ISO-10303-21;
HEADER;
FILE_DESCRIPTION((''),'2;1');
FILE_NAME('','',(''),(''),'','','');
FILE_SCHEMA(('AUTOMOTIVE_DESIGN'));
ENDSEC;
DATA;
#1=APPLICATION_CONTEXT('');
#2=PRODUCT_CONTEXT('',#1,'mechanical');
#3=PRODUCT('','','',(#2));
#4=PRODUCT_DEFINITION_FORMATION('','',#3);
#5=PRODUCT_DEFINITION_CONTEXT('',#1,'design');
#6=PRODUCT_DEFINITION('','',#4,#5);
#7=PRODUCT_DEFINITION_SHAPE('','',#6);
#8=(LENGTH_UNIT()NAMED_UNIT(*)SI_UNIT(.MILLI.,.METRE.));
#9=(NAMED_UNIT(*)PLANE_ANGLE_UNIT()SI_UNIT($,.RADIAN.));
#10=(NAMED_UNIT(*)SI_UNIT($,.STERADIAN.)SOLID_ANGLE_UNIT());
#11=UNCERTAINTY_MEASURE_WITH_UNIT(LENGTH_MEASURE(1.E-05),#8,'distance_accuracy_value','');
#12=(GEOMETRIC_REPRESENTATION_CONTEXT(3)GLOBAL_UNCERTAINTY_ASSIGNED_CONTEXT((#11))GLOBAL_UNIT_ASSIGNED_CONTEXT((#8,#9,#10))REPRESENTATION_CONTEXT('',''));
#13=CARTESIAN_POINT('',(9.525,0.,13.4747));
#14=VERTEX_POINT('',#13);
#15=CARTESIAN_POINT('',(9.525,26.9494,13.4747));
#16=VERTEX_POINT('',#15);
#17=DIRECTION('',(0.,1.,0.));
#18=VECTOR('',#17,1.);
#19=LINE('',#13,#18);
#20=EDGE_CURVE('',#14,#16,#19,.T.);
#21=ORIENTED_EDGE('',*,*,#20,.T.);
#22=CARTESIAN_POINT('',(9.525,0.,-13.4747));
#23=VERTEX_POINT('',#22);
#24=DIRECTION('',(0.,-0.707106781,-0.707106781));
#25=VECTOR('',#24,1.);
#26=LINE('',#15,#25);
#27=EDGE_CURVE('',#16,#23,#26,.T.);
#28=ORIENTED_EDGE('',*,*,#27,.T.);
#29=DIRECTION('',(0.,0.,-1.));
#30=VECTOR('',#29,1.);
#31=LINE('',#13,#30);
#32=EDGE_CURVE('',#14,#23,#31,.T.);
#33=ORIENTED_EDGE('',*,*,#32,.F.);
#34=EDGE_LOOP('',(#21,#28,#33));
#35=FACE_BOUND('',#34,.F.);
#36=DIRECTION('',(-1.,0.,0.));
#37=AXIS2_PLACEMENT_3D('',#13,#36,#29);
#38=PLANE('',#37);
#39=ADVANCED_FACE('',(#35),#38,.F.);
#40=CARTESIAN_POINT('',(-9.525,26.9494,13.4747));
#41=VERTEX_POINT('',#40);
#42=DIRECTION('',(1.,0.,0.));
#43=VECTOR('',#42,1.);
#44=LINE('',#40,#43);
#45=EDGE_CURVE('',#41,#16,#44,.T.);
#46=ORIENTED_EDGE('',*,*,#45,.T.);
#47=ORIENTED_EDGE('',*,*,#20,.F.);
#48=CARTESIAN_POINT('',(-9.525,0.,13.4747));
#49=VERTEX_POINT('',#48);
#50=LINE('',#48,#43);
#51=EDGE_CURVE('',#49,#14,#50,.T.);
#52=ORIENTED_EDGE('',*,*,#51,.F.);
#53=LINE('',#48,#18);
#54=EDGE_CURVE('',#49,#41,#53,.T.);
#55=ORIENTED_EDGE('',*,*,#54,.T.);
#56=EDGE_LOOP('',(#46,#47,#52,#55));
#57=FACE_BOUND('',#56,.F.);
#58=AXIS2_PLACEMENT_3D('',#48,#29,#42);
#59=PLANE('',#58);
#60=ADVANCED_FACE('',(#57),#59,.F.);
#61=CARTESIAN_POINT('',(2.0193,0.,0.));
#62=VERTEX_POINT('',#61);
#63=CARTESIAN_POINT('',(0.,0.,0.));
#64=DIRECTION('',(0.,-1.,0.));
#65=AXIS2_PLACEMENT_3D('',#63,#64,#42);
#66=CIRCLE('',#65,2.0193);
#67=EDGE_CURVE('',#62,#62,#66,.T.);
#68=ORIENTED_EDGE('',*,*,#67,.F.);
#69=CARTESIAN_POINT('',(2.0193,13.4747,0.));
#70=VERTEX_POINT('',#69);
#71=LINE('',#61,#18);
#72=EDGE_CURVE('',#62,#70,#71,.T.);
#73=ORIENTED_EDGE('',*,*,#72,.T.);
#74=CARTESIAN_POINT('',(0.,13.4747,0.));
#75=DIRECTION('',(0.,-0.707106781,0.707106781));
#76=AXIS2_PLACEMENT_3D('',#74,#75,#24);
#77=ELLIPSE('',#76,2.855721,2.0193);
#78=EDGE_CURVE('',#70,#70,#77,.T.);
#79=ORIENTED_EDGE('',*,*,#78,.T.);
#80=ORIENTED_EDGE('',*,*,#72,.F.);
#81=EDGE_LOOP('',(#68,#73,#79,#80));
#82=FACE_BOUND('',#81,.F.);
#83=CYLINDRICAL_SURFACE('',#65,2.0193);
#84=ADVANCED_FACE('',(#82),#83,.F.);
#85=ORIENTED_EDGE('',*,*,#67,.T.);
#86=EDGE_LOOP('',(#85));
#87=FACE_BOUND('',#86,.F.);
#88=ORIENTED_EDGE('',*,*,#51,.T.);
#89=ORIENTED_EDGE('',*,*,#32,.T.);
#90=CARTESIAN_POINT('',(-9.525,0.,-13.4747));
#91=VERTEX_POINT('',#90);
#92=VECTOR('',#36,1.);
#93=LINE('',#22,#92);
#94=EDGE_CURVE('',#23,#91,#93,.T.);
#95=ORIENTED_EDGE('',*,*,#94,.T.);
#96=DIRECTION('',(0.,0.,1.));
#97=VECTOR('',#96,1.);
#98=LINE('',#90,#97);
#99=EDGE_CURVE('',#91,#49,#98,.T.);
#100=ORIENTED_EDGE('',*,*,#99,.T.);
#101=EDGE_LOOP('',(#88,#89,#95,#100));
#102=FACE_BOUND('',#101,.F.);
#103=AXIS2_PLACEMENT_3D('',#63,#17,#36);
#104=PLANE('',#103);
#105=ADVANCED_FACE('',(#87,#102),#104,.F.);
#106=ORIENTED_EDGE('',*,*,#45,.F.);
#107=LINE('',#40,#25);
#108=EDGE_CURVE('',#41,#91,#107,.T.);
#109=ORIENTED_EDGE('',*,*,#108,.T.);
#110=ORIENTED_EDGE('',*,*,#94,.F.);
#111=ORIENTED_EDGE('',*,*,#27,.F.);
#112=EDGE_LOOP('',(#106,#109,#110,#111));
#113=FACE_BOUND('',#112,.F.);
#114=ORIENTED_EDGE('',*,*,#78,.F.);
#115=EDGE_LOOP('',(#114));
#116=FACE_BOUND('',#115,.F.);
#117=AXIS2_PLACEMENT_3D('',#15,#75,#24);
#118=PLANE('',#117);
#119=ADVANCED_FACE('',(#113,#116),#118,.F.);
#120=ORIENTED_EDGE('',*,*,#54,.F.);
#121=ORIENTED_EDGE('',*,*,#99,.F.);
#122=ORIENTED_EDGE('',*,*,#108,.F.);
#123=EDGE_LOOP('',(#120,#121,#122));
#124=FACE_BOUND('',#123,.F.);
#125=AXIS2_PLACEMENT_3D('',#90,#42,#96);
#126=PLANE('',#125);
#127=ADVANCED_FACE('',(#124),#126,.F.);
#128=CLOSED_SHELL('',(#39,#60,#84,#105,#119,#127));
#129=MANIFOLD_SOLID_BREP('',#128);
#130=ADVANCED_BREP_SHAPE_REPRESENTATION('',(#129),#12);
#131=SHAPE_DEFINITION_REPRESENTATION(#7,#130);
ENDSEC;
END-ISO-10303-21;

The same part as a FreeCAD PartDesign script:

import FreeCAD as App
import Part
import Sketcher
Q = App.Units.Quantity

doc = App.newDocument("Part")
body = doc.addObject("PartDesign::Body", "Body")

# Sketch on XZ plane
sketch1 = doc.addObject("Sketcher::SketchObject", "Sketch")
body.addObject(sketch1)
sketch1.AttachmentSupport = (doc.XZ_Plane, [""])
sketch1.MapMode = "FlatFace"
sketch1.addGeometry([
    Part.LineSegment(App.Vector(10, 13, 0), App.Vector(10, -13, 0)),
    Part.LineSegment(App.Vector(10, -13, 0), App.Vector(-10, -13, 0)),
    Part.LineSegment(App.Vector(-10, -13, 0), App.Vector(-10, 13, 0)),
    Part.LineSegment(App.Vector(-10, 13, 0), App.Vector(10, 13, 0)),
], False)
sketch1.addConstraint([
    Sketcher.Constraint("Coincident", 0, 2, 1, 1),
    Sketcher.Constraint("Coincident", 1, 2, 2, 1),
    Sketcher.Constraint("Coincident", 2, 2, 3, 1),
    Sketcher.Constraint("Coincident", 3, 2, 0, 1),
    Sketcher.Constraint("Vertical", 0),
    Sketcher.Constraint("Horizontal", 1),
    Sketcher.Constraint("Vertical", 2),
    Sketcher.Constraint("Horizontal", 3),
    Sketcher.Constraint("Symmetric", 0, 2, 2, 2, -1, 1),
    Sketcher.Constraint("DistanceX", 1, 2, 1, 1, Q("0.75 in")),
    Sketcher.Constraint("DistanceY", 0, 2, 0, 1, Q("1.061 in")),
])
pad1 = doc.addObject("PartDesign::Pad", "Pad")
body.addObject(pad1)
pad1.Profile = sketch1
pad1.Length = Q("1.061 in")
pad1.Reversed = True

# Sketch on YZ plane
sketch2 = doc.addObject("Sketcher::SketchObject", "Sketch001")
body.addObject(sketch2)
sketch2.AttachmentSupport = (doc.YZ_Plane, [""])
sketch2.MapMode = "FlatFace"
sketch2.AttachmentOffset = App.Placement(App.Vector(0, 0, 0.375 * 25.4), App.Rotation())
sketch2.addGeometry([
    Part.LineSegment(App.Vector(0, -13, 0), App.Vector(27, -13, 0)),
    Part.LineSegment(App.Vector(27, -13, 0), App.Vector(27, 13, 0)),
    Part.LineSegment(App.Vector(27, 13, 0), App.Vector(0, -13, 0)),
], False)
sketch2.addConstraint([
    Sketcher.Constraint("Coincident", 0, 2, 1, 1),
    Sketcher.Constraint("Coincident", 1, 2, 2, 1),
    Sketcher.Constraint("Coincident", 2, 2, 0, 1),
    Sketcher.Constraint("Horizontal", 0),
    Sketcher.Constraint("Vertical", 1),
    Sketcher.Constraint("PointOnObject", 2, 2, -2),
    Sketcher.Constraint("Equal", 0, 1),
    Sketcher.Constraint("DistanceX", 0, 1, 0, 2, Q("1.061 in")),
    Sketcher.Constraint("DistanceY", 0, 2, -1, 1, Q("0.5305 in")),
])
pocket1 = doc.addObject("PartDesign::Pocket", "Pocket")
body.addObject(pocket1)
pocket1.Profile = sketch2
pocket1.Length = Q("0.75 in")

# Sketch on XZ plane
sketch3 = doc.addObject("Sketcher::SketchObject", "Sketch002")
body.addObject(sketch3)
sketch3.AttachmentSupport = (doc.XZ_Plane, [""])
sketch3.MapMode = "FlatFace"
sketch3.addGeometry(Part.Circle(App.Vector(0, 0, 0), App.Vector(0, 0, 1), 2), False)
sketch3.addConstraint([
    Sketcher.Constraint("Coincident", 0, 3, -1, 1),
    Sketcher.Constraint("Diameter", 0, Q("0.159 in")),
])
pocket2 = doc.addObject("PartDesign::Pocket", "Pocket001")
body.addObject(pocket2)
pocket2.Profile = sketch3
pocket2.Length = Q("0.75 in")

doc.recompute()
